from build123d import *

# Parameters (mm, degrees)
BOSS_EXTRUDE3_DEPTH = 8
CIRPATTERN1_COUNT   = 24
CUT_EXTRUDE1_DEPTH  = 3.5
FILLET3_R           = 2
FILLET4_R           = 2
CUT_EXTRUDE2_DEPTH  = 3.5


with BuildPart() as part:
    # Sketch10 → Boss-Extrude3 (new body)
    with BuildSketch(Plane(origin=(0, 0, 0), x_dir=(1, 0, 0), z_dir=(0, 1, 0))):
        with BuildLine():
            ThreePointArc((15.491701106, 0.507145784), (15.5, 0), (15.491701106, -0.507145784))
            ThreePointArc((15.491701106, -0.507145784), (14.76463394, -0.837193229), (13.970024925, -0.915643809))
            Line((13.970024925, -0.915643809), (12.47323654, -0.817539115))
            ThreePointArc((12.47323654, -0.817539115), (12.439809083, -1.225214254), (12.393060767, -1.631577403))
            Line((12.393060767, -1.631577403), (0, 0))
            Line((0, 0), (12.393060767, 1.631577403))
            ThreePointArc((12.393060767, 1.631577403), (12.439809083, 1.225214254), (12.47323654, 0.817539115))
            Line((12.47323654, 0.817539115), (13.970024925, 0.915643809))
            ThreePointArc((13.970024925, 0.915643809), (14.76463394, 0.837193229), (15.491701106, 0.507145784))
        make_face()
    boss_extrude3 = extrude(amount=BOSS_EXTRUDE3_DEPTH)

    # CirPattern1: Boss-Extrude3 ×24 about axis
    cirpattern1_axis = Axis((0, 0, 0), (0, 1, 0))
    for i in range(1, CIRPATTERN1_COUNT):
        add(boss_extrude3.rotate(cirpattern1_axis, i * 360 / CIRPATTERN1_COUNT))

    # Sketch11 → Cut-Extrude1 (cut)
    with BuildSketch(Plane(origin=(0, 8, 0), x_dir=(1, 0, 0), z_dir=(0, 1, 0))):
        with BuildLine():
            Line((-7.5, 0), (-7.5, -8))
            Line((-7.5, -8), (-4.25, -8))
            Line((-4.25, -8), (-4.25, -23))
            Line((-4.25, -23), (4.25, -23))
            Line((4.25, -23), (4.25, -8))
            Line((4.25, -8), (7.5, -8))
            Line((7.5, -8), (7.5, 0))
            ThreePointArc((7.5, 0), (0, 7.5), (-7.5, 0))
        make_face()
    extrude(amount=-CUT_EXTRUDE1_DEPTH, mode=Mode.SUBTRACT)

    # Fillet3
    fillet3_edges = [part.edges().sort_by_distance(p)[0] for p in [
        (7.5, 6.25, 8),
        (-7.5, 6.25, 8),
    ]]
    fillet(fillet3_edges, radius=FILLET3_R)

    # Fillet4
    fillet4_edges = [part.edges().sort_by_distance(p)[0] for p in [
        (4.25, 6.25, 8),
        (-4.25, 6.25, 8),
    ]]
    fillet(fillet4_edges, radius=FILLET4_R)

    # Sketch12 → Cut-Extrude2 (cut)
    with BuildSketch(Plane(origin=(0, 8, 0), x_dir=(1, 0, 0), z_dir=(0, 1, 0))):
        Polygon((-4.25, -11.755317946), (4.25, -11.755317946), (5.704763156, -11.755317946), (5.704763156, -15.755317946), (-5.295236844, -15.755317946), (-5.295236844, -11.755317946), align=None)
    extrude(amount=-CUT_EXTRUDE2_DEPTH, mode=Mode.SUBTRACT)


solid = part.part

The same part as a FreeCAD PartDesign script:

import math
import FreeCAD as App
import Part
import Sketcher

V = App.Vector
Q = App.Units.Quantity


def edges_at(feature, points):
    """Names of the edges that pass closest to the given points."""
    edges = feature.Shape.Edges
    near = lambda p: min(range(len(edges)), key=lambda i: edges[i].distToShape(Part.Vertex(*p))[0])
    return sorted({f"Edge{near(p) + 1}" for p in points})


def add_polygon(sketch, points):
    """Adds a closed chain of lines whose ends are joined by coincident constraints."""
    first, n = sketch.GeometryCount, len(points)
    for a, b in zip(points, points[1:] + points[:1]):
        sketch.addGeometry(Part.LineSegment(App.Vector(*a, 0), App.Vector(*b, 0)), False)
    for i in range(n):
        sketch.addConstraint(Sketcher.Constraint("Coincident", first + i, 2, first + (i + 1) % n, 1))

doc = App.newDocument("Part")
body = doc.addObject("PartDesign::Body", "Body")

# Sketch on XZ plane
sketch1 = doc.addObject("Sketcher::SketchObject", "Sketch")
body.addObject(sketch1)
sketch1.AttachmentSupport = (doc.XZ_Plane, [""])
sketch1.MapMode = "FlatFace"
sketch1.addGeometry([
    Part.ArcOfCircle(Part.Circle(V(0, 0, 0), V(0, 0, 1), 15.5), math.radians(-1.87), math.radians(1.87)),  # 0
    Part.ArcOfCircle(Part.Circle(V(14.1, 1.5, 0), V(0, 0, 1), 2.4), math.radians(-94), math.radians(-56)),  # 1
    Part.LineSegment(V(14, -0.9, 0), V(12.5, -0.8, 0)),  # 2
    Part.ArcOfCircle(Part.Circle(V(0, 0, 0), V(0, 0, 1), 12.5), math.radians(-7.5), math.radians(-3.75)),  # 3
    Part.LineSegment(V(12.4, -1.6, 0), V(0, 0, 0)),  # 4
    Part.LineSegment(V(0, 0, 0), V(12.4, 1.6, 0)),  # 5
    Part.ArcOfCircle(Part.Circle(V(0, 0, 0), V(0, 0, 1), 12.5), math.radians(3.75), math.radians(7.5)),  # 6
    Part.LineSegment(V(12.5, 0.8, 0), V(14, 0.9, 0)),  # 7
    Part.ArcOfCircle(Part.Circle(V(14.1, -1.5, 0), V(0, 0, 1), 2.4), math.radians(56), math.radians(94)),  # 8
], False)
sketch1.addConstraint([
    Sketcher.Constraint("Coincident", 0, 1, 1, 2),
    Sketcher.Constraint("Tangent", 1, 1, 2, 1),
    Sketcher.Constraint("Coincident", 2, 2, 3, 2),
    Sketcher.Constraint("Coincident", 3, 1, 4, 1),
    Sketcher.Constraint("Coincident", 4, 2, 5, 1),
    Sketcher.Constraint("Coincident", 5, 2, 6, 2),
    Sketcher.Constraint("Coincident", 6, 1, 7, 1),
    Sketcher.Constraint("Tangent", 7, 2, 8, 2),
    Sketcher.Constraint("Coincident", 8, 1, 0, 2),
    Sketcher.Constraint("Coincident", 0, 3, -1, 1),
    Sketcher.Constraint("Coincident", 3, 3, -1, 1),
    Sketcher.Constraint("Coincident", 6, 3, -1, 1),
    Sketcher.Constraint("Coincident", 4, 2, -1, 1),
    Sketcher.Constraint("Equal", 3, 6),
    Sketcher.Constraint("Equal", 1, 8),
    Sketcher.Constraint("Symmetric", 1, 3, 8, 3, -1),
    Sketcher.Constraint("Vertical", 3, 1, 5, 2),
    Sketcher.Constraint("Vertical", 2, 2, 6, 1),
    Sketcher.Constraint("Radius", 0, Q("15.5 mm")),
    Sketcher.Constraint("Radius", 3, Q("12.5 mm")),
    Sketcher.Constraint("Angle", 4, Q("172.5 deg")),
    Sketcher.Constraint("Distance", 2, Q("1.5 mm")),
    Sketcher.Constraint("Angle", 2, Q("176.25 deg")),
    Sketcher.Constraint("Radius", 1, Q("2.447392 mm")),
    Sketcher.Constraint("DistanceX", -1, 1, 0, 1, Q("15.491701 mm")),
])
pad1 = doc.addObject("PartDesign::Pad", "Pad")
body.addObject(pad1)
pad1.Profile = sketch1
pad1.Length = 8
pad1.Reversed = True
doc.recompute()

polarpattern = doc.addObject("PartDesign::PolarPattern", "PolarPattern")
body.addObject(polarpattern)
polarpattern.Originals = [pad1]
polarpattern.Axis = (doc.Y_Axis, [""])
polarpattern.Angle = 360
polarpattern.Occurrences = 24
body.Tip = polarpattern

# Sketch on XZ plane
sketch2 = doc.addObject("Sketcher::SketchObject", "Sketch001")
body.addObject(sketch2)
sketch2.AttachmentSupport = (doc.XZ_Plane, [""])
sketch2.MapMode = "FlatFace"
sketch2.AttachmentOffset = App.Placement(V(0, 0, -8), App.Rotation())
sketch2.addGeometry([
    Part.LineSegment(V(-7.5, 0, 0), V(-7.5, 8, 0)),  # 0
    Part.LineSegment(V(-7.5, 8, 0), V(-4.2, 8, 0)),  # 1
    Part.LineSegment(V(-4.2, 8, 0), V(-4.2, 23, 0)),  # 2
    Part.LineSegment(V(-4.2, 23, 0), V(4.2, 23, 0)),  # 3
    Part.LineSegment(V(4.2, 23, 0), V(4.2, 8, 0)),  # 4
    Part.LineSegment(V(4.2, 8, 0), V(7.5, 8, 0)),  # 5
    Part.LineSegment(V(7.5, 8, 0), V(7.5, 0, 0)),  # 6
    Part.ArcOfCircle(Part.Circle(V(0, 0, 0), V(0, 0, 1), 7.5), math.radians(180), math.radians(360)),  # 7
], False)
sketch2.addConstraint([
    Sketcher.Constraint("Coincident", 0, 2, 1, 1),
    Sketcher.Constraint("Coincident", 1, 2, 2, 1),
    Sketcher.Constraint("Coincident", 2, 2, 3, 1),
    Sketcher.Constraint("Coincident", 3, 2, 4, 1),
    Sketcher.Constraint("Coincident", 4, 2, 5, 1),
    Sketcher.Constraint("Coincident", 5, 2, 6, 1),
    Sketcher.Constraint("Tangent", 6, 2, 7, 2),
    Sketcher.Constraint("Tangent", 7, 1, 0, 1),
    Sketcher.Constraint("Vertical", 0),
    Sketcher.Constraint("Horizontal", 1),
    Sketcher.Constraint("Vertical", 2),
    Sketcher.Constraint("Horizontal", 3),
    Sketcher.Constraint("Vertical", 4),
    Sketcher.Constraint("Horizontal", 5),
    Sketcher.Constraint("Vertical", 6),
    Sketcher.Constraint("Coincident", 7, 3, -1, 1),
    Sketcher.Constraint("Symmetric", 1, 2, 4, 2, -2),
    Sketcher.Constraint("Radius", 7, Q("7.5 mm")),
    Sketcher.Constraint("DistanceY", 0, 1, 0, 2, Q("8 mm")),
    Sketcher.Constraint("DistanceY", 2, 1, 2, 2, Q("15 mm")),
    Sketcher.Constraint("DistanceX", 3, 1, 3, 2, Q("8.5 mm")),
])
pocket1 = doc.addObject("PartDesign::Pocket", "Pocket")
body.addObject(pocket1)
pocket1.Profile = sketch2
pocket1.Length = 3.5
pocket1.Reversed = True
doc.recompute()

fillet = doc.addObject("PartDesign::Fillet", "Fillet")
body.addObject(fillet)
fillet.Base = (pocket1, edges_at(pocket1, [(7.5, 6.25, 8), (-7.5, 6.25, 8)]))
fillet.Radius = 2
doc.recompute()

fillet2 = doc.addObject("PartDesign::Fillet", "Fillet001")
body.addObject(fillet2)
fillet2.Base = (fillet, edges_at(fillet, [(4.25, 6.25, 8), (-4.25, 6.25, 8)]))
fillet2.Radius = 2

# Sketch on XZ plane
sketch3 = doc.addObject("Sketcher::SketchObject", "Sketch002")
body.addObject(sketch3)
sketch3.AttachmentSupport = (doc.XZ_Plane, [""])
sketch3.MapMode = "FlatFace"
sketch3.AttachmentOffset = App.Placement(V(0, 0, -8), App.Rotation())
add_polygon(sketch3, [(5.7, 11.8), (-5.3, 11.8), (-5.3, 15.8), (5.7, 15.8)])  # lines 0-3
sketch3.addConstraint([
    Sketcher.Constraint("Horizontal", 0),
    Sketcher.Constraint("Vertical", 1),
    Sketcher.Constraint("Horizontal", 2),
    Sketcher.Constraint("Vertical", 3),
    Sketcher.Constraint("DistanceX", 0, 2, 0, 1, Q("11 mm")),
    Sketcher.Constraint("DistanceY", 1, 1, 1, 2, Q("4 mm")),
    Sketcher.Constraint("DistanceX", 0, 2, -1, 1, Q("5.295237 mm")),
    Sketcher.Constraint("DistanceY", -1, 1, 0, 2, Q("11.755318 mm")),
])
pocket2 = doc.addObject("PartDesign::Pocket", "Pocket001")
body.addObject(pocket2)
pocket2.Profile = sketch3
pocket2.Length = 3.5
pocket2.Reversed = True

doc.recompute()
